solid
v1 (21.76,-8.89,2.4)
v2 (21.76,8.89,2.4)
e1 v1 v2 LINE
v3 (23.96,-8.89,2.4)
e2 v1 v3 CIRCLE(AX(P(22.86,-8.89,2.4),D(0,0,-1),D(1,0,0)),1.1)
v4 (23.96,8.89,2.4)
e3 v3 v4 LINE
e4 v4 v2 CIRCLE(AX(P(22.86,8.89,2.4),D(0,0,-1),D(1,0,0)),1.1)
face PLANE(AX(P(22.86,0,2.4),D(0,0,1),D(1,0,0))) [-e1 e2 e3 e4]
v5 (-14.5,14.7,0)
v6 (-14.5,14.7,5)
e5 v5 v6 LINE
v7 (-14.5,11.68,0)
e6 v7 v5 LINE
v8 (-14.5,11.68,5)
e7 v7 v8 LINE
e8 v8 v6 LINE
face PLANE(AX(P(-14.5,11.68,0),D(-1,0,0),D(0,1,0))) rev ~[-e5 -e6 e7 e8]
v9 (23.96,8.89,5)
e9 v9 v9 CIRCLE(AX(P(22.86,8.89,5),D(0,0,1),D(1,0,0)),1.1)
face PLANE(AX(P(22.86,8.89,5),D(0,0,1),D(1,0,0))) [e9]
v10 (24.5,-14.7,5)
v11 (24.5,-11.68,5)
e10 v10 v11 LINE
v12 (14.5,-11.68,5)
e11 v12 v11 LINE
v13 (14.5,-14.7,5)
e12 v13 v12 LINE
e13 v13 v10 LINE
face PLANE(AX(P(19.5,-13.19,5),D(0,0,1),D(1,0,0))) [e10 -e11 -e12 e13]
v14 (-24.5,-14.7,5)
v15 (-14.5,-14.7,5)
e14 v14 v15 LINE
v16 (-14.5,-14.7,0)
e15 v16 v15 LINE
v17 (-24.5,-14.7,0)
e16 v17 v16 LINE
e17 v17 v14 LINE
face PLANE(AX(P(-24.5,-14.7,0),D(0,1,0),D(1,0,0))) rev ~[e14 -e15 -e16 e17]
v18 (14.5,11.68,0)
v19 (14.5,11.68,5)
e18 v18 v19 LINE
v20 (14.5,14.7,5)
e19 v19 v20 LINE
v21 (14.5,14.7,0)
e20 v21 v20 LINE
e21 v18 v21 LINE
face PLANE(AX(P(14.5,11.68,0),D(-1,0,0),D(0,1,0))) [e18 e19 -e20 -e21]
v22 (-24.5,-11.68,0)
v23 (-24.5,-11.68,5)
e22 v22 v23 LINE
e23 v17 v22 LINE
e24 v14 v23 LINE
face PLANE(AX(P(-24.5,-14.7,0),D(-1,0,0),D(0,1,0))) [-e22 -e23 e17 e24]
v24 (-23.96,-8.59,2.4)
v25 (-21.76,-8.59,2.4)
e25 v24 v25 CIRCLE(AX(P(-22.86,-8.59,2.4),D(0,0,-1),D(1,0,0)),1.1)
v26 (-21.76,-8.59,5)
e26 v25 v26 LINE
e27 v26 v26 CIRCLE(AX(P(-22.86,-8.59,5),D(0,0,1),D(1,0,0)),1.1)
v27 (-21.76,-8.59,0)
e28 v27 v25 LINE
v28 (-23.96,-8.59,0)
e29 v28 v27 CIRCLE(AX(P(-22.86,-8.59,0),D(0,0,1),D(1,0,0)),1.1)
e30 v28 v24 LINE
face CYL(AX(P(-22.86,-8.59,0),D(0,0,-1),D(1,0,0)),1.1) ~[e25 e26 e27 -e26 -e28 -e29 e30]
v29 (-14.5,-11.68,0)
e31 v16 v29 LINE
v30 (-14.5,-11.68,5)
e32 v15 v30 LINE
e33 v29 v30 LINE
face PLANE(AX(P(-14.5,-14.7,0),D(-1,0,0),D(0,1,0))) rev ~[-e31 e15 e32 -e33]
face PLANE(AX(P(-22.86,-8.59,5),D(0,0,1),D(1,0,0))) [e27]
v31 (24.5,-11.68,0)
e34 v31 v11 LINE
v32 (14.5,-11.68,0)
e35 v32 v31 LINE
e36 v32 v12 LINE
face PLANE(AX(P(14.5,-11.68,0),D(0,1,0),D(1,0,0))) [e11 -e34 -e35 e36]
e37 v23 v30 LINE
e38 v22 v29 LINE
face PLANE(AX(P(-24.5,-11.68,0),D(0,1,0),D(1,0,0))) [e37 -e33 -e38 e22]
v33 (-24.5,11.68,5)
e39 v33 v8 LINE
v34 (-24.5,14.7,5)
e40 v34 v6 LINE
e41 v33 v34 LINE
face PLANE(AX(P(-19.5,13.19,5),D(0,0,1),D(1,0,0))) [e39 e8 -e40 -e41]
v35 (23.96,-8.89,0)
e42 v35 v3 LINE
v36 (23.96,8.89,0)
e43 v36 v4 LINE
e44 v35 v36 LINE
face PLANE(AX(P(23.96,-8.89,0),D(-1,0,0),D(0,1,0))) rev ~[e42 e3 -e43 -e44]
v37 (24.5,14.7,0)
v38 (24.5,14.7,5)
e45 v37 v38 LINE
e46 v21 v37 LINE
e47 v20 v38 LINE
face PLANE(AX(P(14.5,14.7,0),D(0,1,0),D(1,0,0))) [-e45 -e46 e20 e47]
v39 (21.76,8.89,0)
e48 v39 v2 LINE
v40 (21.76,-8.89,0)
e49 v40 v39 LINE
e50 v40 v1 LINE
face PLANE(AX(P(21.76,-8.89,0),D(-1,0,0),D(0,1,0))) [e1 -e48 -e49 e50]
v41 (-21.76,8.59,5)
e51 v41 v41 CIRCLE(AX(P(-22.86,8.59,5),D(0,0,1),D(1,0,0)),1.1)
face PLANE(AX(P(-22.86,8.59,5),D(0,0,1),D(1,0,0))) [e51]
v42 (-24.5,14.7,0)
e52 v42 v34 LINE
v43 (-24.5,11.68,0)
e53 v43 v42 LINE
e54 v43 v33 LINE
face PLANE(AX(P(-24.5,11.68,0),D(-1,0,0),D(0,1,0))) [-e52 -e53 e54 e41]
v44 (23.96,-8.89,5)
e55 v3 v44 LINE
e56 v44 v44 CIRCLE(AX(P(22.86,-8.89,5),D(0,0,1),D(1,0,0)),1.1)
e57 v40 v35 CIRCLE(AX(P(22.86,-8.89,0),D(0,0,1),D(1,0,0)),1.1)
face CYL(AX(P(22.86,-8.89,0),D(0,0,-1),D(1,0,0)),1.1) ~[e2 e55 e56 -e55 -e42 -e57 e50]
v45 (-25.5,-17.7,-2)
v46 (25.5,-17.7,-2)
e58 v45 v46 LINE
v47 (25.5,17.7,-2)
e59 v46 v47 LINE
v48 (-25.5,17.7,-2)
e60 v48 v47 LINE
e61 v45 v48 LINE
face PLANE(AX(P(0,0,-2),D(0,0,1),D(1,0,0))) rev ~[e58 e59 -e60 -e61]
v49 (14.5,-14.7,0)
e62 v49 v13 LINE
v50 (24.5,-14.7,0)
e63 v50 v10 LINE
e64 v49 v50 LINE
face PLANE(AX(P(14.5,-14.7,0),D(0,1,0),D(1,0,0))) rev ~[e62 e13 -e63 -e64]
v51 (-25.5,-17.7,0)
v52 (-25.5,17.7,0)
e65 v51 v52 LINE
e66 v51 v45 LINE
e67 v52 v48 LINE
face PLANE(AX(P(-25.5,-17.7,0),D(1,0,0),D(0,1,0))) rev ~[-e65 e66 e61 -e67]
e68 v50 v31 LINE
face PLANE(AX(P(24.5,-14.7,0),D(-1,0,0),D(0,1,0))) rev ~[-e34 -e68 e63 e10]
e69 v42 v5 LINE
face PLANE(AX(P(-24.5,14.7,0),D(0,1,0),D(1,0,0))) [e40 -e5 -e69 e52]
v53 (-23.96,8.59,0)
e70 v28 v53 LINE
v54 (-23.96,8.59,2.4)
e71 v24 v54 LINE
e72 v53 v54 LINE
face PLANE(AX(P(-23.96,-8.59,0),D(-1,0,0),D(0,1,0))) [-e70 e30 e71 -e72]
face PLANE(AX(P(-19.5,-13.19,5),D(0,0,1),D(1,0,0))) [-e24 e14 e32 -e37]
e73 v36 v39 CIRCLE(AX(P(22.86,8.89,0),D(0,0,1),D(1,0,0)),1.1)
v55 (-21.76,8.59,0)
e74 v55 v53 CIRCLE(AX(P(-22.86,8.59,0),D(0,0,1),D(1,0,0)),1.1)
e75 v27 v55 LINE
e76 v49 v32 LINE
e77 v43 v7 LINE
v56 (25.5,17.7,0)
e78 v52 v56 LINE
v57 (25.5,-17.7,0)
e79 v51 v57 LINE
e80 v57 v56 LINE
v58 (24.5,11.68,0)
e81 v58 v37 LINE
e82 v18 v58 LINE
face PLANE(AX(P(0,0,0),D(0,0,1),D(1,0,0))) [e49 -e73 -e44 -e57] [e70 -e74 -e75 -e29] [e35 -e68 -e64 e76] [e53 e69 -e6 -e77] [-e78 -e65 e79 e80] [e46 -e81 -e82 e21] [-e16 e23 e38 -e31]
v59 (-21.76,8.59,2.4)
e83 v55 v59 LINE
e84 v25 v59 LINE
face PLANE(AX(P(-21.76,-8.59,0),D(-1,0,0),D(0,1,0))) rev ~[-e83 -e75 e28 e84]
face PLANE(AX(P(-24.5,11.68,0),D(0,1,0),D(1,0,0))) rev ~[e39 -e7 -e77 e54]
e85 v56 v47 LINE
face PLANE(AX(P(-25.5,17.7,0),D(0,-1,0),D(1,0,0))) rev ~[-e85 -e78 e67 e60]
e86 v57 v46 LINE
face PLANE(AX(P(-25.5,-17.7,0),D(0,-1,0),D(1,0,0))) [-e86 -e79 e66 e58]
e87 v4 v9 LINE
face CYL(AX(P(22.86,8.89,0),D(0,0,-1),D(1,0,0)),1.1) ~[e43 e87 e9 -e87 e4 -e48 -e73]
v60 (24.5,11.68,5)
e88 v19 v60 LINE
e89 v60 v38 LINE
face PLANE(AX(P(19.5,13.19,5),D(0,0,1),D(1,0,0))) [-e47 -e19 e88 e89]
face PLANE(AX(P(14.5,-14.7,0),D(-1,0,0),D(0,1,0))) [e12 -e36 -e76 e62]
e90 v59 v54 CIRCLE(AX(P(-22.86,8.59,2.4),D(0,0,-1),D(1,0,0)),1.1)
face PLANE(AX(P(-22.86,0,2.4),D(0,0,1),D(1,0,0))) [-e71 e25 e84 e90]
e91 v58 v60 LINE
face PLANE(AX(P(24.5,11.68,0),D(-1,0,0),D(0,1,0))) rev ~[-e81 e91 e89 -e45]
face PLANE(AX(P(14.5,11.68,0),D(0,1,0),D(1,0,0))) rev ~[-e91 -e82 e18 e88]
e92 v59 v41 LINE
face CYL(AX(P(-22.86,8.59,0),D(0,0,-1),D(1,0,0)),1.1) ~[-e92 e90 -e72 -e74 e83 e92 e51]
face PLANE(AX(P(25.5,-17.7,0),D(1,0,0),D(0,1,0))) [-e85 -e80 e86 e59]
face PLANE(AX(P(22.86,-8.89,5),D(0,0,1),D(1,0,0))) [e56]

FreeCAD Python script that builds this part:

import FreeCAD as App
import Part
import Sketcher


def add_polygon(sketch, points):
    """Adds a closed chain of lines whose ends are joined by coincident constraints."""
    first, n = sketch.GeometryCount, len(points)
    for a, b in zip(points, points[1:] + points[:1]):
        sketch.addGeometry(Part.LineSegment(App.Vector(*a, 0), App.Vector(*b, 0)), False)
    for i in range(n):
        sketch.addConstraint(Sketcher.Constraint("Coincident", first + i, 2, first + (i + 1) % n, 1))

doc = App.newDocument("Part")
body = doc.addObject("PartDesign::Body", "Body")

# Sketch on XY plane
sketch1 = doc.addObject("Sketcher::SketchObject", "Sketch")
body.addObject(sketch1)
sketch1.AttachmentSupport = (doc.XY_Plane, [""])
sketch1.MapMode = "FlatFace"
add_polygon(sketch1, [(-26, 18), (-26, -18), (26, -18), (26, 18)])  # lines 0-3
sketch1.addConstraint([
    Sketcher.Constraint("Vertical", 0),
    Sketcher.Constraint("Horizontal", 1),
    Sketcher.Constraint("Vertical", 2),
    Sketcher.Constraint("Horizontal", 3),
    Sketcher.Constraint("Symmetric", 0, 2, 2, 2, -1, 1),
    Sketcher.Constraint("DistanceX", 1, 1, 1, 2, 51.0),
    Sketcher.Constraint("DistanceY", 0, 2, 0, 1, 35.4),
])
pad1 = doc.addObject("PartDesign::Pad", "Pad")
body.addObject(pad1)
pad1.Profile = sketch1
pad1.Length = 2
pad1.Reversed = True

# Sketch on XY plane
sketch2 = doc.addObject("Sketcher::SketchObject", "Sketch001")
body.addObject(sketch2)
sketch2.AttachmentSupport = (doc.XY_Plane, [""])
sketch2.MapMode = "FlatFace"
add_polygon(sketch2, [(-24, 8.6), (-24, -8.6), (-21.8, -8.6), (-21.8, 8.6)])  # lines 0-3
add_polygon(sketch2, [(21.8, 8.9), (21.8, -8.9), (24, -8.9), (24, 8.9)])  # lines 4-7
sketch2.addConstraint([
    Sketcher.Constraint("Vertical", 0),
    Sketcher.Constraint("Horizontal", 1),
    Sketcher.Constraint("Vertical", 2),
    Sketcher.Constraint("Horizontal", 3),
    Sketcher.Constraint("Vertical", 4),
    Sketcher.Constraint("Horizontal", 5),
    Sketcher.Constraint("Vertical", 6),
    Sketcher.Constraint("Horizontal", 7),
    Sketcher.Constraint("Equal", 3, 5),
    Sketcher.Constraint("DistanceX", 1, 1, 1, 2, 2.2),
    Sketcher.Constraint("DistanceY", 0, 2, 0, 1, 17.18),
    Sketcher.Constraint("DistanceY", 4, 2, 4, 1, 17.78),
    Sketcher.Constraint("DistanceY", 4, 2, 1, 2, 0.3),
    Sketcher.Constraint("DistanceX", 0, 2, -1, 1, 23.96),
    Sketcher.Constraint("DistanceY", 0, 2, -1, 1, 8.59),
    Sketcher.Constraint("DistanceX", -1, 1, 4, 2, 21.76),
])
pad2 = doc.addObject("PartDesign::Pad", "Pad001")
body.addObject(pad2)
pad2.Profile = sketch2
pad2.Length = 2.4

# Sketch on XY plane
sketch3 = doc.addObject("Sketcher::SketchObject", "Sketch002")
body.addObject(sketch3)
sketch3.AttachmentSupport = (doc.XY_Plane, [""])
sketch3.MapMode = "FlatFace"
sketch3.addGeometry(Part.Circle(App.Vector(-22.9, -8.6, 0), App.Vector(0, 0, 1), 1.1), False)  # 0
sketch3.addGeometry(Part.Circle(App.Vector(-22.9, 8.6, 0), App.Vector(0, 0, 1), 1.1), False)  # 1
sketch3.addGeometry(Part.Circle(App.Vector(22.9, 8.9, 0), App.Vector(0, 0, 1), 1.1), False)  # 2
sketch3.addGeometry(Part.Circle(App.Vector(22.9, -8.9, 0), App.Vector(0, 0, 1), 1.1), False)  # 3
add_polygon(sketch3, [(-24.5, 14.7), (-24.5, 11.7), (-14.5, 11.7), (-14.5, 14.7)])  # lines 4-7
add_polygon(sketch3, [(14.5, 14.7), (14.5, 11.7), (24.5, 11.7), (24.5, 14.7)])  # lines 8-11
add_polygon(sketch3, [(-24.5, -11.7), (-24.5, -14.7), (-14.5, -14.7), (-14.5, -11.7)])  # lines 12-15
add_polygon(sketch3, [(14.5, -11.7), (14.5, -14.7), (24.5, -14.7), (24.5, -11.7)])  # lines 16-19
sketch3.addConstraint([
    Sketcher.Constraint("Vertical", 4),
    Sketcher.Constraint("Horizontal", 5),
    Sketcher.Constraint("Vertical", 6),
    Sketcher.Constraint("Horizontal", 7),
    Sketcher.Constraint("Vertical", 8),
    Sketcher.Constraint("Horizontal", 9),
    Sketcher.Constraint("Vertical", 10),
    Sketcher.Constraint("Horizontal", 11),
    Sketcher.Constraint("Vertical", 12),
    Sketcher.Constraint("Horizontal", 13),
    Sketcher.Constraint("Vertical", 14),
    Sketcher.Constraint("Horizontal", 15),
    Sketcher.Constraint("Vertical", 16),
    Sketcher.Constraint("Horizontal", 17),
    Sketcher.Constraint("Vertical", 18),
    Sketcher.Constraint("Horizontal", 19),
    Sketcher.Constraint("Equal", 0, 1),
    Sketcher.Constraint("Equal", 1, 2),
    Sketcher.Constraint("Equal", 2, 3),
    Sketcher.Constraint("Symmetric", 10, 2, 12, 2, -1, 1),
    Sketcher.Constraint("Symmetric", 8, 2, 14, 2, -1, 1),
    Sketcher.Constraint("Symmetric", 6, 2, 16, 2, -1, 1),
    Sketcher.Constraint("Symmetric", 4, 2, 18, 2, -1, 1),
    Sketcher.Constraint("Symmetric", 5, 2, 8, 2, -2),
    Sketcher.Constraint("Symmetric", 7, 2, 10, 2, -2),
    Sketcher.Constraint("Symmetric", 0, 3, 1, 3, -1),
    Sketcher.Constraint("Symmetric", 2, 3, 3, 3, -1),
    Sketcher.Constraint("Diameter", 0, 2.2),
    Sketcher.Constraint("DistanceX", 5, 1, 5, 2, 10.0),
    Sketcher.Constraint("DistanceX", 5, 2, 8, 2, 29.0),
    Sketcher.Constraint("DistanceY", 4, 2, 4, 1, 3.02),
    Sketcher.Constraint("DistanceY", -1, 1, 6, 2, 14.7),
    Sketcher.Constraint("DistanceY", 1, 3, 2, 3, 0.3),
    Sketcher.Constraint("DistanceX", 0, 3, -1, 1, 22.86),
    Sketcher.Constraint("DistanceY", 0, 3, -1, 1, 8.59),
    Sketcher.Constraint("DistanceX", -1, 1, 2, 3, 22.86),
])
pad3 = doc.addObject("PartDesign::Pad", "Pad002")
body.addObject(pad3)
pad3.Profile = sketch3
pad3.Length = 5

doc.recompute()
